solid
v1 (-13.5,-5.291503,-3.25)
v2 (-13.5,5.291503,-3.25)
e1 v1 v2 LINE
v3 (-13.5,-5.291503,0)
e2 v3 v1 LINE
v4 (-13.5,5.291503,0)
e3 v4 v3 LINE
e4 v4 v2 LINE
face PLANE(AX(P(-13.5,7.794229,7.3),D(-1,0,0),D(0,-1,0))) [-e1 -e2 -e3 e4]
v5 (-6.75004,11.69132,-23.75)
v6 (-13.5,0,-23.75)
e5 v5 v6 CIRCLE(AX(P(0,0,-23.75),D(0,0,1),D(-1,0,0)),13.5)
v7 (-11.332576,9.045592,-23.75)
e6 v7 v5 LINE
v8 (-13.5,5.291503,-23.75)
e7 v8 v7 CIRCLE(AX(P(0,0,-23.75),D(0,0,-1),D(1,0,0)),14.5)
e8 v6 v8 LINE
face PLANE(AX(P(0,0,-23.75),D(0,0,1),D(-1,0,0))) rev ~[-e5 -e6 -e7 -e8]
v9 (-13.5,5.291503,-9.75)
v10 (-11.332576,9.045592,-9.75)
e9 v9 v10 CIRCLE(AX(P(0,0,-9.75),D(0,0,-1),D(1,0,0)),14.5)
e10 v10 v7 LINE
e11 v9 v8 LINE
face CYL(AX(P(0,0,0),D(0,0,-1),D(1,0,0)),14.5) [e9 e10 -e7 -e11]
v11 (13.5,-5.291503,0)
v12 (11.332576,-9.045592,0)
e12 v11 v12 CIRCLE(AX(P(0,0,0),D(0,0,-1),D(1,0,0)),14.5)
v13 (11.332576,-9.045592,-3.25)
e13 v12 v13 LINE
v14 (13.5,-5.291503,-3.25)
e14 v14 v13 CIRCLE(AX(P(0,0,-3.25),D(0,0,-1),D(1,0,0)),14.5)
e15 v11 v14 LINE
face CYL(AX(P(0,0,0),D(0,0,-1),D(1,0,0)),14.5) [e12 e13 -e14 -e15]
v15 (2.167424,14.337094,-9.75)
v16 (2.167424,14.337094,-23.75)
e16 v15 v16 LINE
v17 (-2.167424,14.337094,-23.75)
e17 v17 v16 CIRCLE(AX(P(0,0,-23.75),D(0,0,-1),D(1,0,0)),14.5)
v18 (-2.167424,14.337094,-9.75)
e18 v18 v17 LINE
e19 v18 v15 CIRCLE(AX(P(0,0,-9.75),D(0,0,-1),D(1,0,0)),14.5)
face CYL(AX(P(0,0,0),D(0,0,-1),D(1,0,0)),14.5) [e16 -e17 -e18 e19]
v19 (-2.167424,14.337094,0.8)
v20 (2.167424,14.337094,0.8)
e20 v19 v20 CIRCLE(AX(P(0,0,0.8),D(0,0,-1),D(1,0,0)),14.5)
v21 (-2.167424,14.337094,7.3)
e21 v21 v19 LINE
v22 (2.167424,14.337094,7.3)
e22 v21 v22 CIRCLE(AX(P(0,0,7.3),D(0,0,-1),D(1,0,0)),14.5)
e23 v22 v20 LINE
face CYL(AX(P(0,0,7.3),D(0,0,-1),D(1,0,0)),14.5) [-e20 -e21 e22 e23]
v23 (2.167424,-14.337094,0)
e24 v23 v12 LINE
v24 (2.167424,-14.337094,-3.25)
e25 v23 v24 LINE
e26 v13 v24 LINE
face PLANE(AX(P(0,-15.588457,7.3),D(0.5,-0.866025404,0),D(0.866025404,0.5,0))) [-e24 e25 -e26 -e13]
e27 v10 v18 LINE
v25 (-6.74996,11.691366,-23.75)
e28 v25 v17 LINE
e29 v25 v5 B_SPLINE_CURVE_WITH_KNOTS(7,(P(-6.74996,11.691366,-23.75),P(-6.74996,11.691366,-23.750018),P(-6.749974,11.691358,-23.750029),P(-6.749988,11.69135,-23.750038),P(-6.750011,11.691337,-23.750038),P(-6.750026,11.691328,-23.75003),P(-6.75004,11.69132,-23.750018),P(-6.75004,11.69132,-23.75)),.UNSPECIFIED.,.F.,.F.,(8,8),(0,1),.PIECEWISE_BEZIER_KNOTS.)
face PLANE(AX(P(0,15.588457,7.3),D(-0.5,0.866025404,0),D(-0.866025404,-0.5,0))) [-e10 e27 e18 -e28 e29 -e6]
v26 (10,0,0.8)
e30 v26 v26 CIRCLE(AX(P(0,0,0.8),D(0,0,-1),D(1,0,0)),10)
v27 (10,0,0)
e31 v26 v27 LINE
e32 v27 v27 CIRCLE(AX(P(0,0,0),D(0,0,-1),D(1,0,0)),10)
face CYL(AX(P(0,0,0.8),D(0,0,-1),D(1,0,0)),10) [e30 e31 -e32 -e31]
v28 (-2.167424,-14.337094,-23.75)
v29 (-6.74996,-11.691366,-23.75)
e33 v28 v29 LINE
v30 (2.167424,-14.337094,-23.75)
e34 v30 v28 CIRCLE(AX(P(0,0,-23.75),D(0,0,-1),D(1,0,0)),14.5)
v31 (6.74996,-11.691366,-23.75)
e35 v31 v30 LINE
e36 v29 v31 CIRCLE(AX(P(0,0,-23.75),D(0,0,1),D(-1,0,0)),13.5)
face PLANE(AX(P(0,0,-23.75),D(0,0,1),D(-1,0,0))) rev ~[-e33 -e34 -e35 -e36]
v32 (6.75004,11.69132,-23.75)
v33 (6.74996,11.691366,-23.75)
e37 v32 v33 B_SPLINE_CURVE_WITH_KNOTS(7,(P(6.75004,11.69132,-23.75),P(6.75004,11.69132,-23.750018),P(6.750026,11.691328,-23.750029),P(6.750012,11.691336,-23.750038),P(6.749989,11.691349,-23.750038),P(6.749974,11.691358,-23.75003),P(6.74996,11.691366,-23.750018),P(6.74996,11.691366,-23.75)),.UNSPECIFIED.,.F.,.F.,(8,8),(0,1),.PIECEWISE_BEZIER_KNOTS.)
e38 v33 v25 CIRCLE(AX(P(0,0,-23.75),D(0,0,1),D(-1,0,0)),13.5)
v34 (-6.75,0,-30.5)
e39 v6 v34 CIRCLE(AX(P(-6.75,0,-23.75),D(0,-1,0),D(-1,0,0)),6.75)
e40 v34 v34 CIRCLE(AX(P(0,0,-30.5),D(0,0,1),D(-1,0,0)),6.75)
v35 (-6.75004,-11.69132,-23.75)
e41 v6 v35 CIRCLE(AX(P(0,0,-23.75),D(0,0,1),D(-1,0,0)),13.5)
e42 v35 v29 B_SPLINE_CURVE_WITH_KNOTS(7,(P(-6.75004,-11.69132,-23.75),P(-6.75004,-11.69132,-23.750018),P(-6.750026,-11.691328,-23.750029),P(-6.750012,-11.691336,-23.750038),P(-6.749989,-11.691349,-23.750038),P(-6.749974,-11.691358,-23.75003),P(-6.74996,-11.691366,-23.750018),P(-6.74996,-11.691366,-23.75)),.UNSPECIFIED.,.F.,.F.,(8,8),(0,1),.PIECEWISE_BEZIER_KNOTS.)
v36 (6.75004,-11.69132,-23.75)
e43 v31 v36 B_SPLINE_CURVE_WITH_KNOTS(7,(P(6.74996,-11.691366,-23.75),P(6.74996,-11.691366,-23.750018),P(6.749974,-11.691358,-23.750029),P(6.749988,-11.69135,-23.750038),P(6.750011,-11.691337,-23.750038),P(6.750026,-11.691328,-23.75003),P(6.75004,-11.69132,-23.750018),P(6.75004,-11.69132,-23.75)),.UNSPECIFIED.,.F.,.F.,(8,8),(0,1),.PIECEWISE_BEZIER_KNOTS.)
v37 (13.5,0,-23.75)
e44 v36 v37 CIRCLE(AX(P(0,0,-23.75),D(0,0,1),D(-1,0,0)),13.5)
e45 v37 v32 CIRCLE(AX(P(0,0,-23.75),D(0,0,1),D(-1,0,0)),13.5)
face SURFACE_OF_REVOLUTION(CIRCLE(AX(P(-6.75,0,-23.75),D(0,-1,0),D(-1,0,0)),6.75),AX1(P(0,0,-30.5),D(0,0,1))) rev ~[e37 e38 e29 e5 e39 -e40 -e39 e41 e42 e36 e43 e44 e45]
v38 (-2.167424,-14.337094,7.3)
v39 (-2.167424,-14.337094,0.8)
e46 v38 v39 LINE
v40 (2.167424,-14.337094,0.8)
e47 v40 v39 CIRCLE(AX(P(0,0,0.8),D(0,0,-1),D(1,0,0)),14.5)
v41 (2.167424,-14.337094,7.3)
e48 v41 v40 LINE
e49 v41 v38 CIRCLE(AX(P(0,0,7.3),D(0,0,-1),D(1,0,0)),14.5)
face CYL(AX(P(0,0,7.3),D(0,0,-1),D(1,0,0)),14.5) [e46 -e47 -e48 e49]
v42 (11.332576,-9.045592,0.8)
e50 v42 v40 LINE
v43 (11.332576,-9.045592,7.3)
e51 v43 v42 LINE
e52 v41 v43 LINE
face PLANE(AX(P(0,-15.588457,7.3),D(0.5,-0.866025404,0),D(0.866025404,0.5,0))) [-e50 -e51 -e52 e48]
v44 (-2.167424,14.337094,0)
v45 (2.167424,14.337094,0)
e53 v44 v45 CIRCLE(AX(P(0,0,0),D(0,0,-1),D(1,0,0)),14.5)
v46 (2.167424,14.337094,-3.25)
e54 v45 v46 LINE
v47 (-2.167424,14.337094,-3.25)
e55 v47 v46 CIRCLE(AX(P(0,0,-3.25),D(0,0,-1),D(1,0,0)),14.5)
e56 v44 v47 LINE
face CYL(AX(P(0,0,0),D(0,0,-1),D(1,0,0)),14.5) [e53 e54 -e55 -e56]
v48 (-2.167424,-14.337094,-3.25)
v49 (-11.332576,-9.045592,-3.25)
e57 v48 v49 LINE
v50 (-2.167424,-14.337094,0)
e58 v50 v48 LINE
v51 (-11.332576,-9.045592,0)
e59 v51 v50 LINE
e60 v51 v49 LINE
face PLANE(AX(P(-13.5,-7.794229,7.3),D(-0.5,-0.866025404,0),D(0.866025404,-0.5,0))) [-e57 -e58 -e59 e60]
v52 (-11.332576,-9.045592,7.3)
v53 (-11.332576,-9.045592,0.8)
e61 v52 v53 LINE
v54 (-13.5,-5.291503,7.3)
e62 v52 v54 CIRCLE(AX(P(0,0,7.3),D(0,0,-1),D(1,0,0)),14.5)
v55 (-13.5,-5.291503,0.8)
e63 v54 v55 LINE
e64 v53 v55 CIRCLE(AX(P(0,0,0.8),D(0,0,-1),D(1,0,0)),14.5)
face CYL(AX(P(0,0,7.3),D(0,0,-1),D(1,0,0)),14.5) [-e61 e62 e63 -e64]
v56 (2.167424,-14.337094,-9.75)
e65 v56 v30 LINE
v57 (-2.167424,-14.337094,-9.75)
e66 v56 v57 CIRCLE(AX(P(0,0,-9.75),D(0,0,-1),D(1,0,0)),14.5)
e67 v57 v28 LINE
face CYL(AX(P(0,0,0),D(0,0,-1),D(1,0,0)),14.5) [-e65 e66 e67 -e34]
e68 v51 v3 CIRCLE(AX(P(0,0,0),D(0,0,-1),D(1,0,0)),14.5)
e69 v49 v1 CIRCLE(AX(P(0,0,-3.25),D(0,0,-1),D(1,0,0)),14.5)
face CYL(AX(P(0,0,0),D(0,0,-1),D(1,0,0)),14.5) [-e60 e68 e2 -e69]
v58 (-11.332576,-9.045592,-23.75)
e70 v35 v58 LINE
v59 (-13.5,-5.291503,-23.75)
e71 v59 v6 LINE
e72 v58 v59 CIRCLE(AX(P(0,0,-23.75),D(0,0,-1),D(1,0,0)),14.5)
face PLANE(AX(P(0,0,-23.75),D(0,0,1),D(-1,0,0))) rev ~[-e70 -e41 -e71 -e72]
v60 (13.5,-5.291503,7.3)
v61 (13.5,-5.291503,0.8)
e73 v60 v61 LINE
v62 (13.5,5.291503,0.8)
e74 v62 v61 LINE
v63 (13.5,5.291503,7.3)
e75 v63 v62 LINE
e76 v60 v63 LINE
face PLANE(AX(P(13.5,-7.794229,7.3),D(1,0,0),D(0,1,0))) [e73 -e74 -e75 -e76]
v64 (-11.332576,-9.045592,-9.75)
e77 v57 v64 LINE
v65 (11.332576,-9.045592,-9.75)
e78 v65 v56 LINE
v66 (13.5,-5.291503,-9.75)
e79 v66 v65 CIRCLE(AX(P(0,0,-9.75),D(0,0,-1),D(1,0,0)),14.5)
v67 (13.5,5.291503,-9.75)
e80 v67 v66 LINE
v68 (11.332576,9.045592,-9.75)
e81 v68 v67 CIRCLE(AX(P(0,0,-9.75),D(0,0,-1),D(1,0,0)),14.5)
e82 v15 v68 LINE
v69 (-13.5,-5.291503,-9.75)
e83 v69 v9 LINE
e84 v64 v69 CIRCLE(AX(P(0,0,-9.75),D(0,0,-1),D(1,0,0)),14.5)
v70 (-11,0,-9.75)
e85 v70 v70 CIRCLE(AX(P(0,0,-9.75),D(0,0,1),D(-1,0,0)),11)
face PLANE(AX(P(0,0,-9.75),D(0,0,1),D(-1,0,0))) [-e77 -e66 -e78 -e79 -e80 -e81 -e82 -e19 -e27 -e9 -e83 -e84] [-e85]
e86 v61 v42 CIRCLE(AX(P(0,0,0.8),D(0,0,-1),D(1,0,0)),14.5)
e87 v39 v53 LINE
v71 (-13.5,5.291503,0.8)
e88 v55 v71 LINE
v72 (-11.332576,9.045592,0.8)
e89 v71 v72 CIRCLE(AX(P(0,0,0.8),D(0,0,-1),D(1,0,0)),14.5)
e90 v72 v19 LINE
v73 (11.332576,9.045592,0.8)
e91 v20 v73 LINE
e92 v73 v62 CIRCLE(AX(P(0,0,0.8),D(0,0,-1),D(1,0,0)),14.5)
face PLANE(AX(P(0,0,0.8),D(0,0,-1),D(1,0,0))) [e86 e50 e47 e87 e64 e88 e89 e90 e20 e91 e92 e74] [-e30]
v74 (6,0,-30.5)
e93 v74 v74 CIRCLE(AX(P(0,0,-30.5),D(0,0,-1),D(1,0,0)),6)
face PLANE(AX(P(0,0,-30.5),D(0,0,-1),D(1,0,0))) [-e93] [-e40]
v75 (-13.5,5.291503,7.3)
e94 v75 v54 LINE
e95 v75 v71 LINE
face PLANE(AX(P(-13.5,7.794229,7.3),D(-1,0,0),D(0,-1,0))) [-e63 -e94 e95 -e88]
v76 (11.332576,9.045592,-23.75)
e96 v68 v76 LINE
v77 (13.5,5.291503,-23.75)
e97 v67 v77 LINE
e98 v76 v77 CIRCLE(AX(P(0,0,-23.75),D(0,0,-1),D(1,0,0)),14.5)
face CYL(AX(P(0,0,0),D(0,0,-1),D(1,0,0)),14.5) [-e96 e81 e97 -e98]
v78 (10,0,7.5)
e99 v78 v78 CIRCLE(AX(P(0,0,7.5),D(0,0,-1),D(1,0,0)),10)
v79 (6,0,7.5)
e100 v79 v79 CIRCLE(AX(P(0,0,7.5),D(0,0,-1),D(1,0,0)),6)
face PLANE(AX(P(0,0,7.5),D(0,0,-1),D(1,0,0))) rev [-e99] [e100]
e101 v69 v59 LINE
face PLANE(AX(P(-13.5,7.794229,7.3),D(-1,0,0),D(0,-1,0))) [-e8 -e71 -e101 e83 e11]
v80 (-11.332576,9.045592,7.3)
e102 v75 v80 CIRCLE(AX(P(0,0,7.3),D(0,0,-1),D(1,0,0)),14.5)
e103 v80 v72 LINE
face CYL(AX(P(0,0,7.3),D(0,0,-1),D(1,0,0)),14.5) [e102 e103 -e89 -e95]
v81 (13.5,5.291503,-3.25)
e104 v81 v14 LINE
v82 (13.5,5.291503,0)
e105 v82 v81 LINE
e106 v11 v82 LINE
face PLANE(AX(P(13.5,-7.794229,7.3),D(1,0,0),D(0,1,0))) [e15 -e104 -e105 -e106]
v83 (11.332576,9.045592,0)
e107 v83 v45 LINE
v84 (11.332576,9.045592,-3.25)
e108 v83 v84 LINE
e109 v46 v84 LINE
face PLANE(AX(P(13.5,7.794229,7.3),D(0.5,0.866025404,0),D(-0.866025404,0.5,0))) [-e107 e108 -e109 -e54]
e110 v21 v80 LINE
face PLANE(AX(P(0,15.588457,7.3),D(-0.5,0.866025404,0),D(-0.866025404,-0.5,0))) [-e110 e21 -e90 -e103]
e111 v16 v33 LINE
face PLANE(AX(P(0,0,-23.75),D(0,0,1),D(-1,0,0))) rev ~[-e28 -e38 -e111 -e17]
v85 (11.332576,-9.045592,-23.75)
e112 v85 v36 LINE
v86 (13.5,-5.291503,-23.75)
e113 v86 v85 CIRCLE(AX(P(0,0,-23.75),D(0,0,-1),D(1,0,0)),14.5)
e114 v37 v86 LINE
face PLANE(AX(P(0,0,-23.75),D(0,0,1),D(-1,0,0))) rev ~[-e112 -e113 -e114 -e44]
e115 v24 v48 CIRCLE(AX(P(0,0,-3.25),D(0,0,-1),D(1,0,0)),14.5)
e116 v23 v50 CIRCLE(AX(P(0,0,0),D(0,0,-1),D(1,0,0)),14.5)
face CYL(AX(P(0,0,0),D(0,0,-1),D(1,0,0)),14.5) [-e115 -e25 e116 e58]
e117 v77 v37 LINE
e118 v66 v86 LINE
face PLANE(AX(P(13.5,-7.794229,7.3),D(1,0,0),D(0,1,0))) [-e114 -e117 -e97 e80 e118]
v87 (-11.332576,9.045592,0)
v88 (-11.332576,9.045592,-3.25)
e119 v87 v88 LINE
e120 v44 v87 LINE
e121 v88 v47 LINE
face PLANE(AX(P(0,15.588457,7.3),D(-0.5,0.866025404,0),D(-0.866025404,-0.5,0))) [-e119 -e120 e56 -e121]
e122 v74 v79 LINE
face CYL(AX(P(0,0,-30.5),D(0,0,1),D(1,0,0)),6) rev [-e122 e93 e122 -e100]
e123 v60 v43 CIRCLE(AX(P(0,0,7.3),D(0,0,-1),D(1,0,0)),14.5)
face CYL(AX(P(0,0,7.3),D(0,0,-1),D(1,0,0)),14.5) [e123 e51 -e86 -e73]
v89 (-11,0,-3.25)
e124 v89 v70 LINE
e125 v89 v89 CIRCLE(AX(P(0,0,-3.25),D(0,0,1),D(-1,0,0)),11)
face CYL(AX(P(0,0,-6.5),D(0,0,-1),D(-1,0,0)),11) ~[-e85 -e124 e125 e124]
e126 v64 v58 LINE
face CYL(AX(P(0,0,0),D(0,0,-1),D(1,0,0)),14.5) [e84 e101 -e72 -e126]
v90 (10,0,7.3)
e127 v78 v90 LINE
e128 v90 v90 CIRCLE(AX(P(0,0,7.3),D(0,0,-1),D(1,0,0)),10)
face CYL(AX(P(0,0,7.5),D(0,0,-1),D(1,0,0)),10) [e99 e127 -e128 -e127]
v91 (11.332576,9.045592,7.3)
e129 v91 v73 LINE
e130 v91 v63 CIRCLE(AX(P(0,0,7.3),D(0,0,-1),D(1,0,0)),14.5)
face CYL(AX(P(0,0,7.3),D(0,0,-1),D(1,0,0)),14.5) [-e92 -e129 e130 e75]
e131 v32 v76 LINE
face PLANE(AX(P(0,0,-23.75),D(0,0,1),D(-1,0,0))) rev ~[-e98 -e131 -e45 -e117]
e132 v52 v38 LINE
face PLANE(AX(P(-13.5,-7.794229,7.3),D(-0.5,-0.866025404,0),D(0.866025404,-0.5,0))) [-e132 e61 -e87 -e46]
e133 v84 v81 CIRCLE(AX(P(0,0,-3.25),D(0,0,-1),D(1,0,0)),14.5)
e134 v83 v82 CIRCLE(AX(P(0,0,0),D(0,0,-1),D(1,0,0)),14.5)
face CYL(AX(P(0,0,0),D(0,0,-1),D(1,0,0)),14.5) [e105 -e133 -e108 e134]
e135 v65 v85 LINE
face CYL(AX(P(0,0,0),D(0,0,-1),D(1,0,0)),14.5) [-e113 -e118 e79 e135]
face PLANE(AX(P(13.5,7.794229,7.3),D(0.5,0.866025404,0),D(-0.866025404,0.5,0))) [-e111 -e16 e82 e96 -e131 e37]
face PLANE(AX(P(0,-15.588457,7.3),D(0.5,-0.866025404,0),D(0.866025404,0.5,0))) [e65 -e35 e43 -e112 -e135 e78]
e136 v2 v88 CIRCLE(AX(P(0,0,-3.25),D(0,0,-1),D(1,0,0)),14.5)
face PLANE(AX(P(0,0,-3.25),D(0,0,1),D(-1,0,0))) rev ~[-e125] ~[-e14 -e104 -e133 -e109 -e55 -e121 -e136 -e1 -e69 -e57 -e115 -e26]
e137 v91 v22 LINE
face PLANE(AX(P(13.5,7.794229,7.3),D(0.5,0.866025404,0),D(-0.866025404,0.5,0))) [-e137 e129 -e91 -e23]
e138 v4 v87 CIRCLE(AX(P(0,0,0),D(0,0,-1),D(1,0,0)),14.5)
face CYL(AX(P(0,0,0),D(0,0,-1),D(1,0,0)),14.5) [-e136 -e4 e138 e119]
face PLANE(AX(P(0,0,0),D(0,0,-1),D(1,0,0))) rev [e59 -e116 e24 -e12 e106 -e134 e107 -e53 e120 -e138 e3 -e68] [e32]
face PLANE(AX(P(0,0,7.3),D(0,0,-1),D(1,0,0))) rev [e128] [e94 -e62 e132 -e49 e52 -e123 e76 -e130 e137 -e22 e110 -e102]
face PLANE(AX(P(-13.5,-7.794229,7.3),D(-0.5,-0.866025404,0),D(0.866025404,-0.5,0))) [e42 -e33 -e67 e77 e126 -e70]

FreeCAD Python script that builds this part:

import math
import FreeCAD as App
import Part
import Sketcher
Q = App.Units.Quantity


def add_polygon(sketch, points):
    """Adds a closed chain of lines whose ends are joined by coincident constraints."""
    first, n = sketch.GeometryCount, len(points)
    for a, b in zip(points, points[1:] + points[:1]):
        sketch.addGeometry(Part.LineSegment(App.Vector(*a, 0), App.Vector(*b, 0)), False)
    for i in range(n):
        sketch.addConstraint(Sketcher.Constraint("Coincident", first + i, 2, first + (i + 1) % n, 1))

doc = App.newDocument("Part")
params = doc.addObject("Spreadsheet::Sheet", "Params")
for row, (alias, value) in enumerate([
    ("sketch1_width", "4 mm"),
    ("sketch1_height", "38 mm"),
    ("sketch1_width2", "8.5 mm"),
    ("sketch1_height2", "0.2 mm"),
    ("sketch1_height3", "30.5 mm"),
    ("revolution_angle", "360 deg"),
    ("sketch3_width", "5 mm"),
    ("sketch3_radius", "6.75 mm"),
    ("sketch3_height", "6.5 mm"),
    ("groove_angle", "360 deg"),
], start=1):
    params.set(f"A{row}", alias)
    params.set(f"B{row}", "=" + value)
    params.setAlias(f"B{row}", alias)

body = doc.addObject("PartDesign::Body", "Body")

# Sketch on YZ plane
sketch1 = doc.addObject("Sketcher::SketchObject", "Sketch")
body.addObject(sketch1)
sketch1.AttachmentSupport = (doc.YZ_Plane, [""])
sketch1.MapMode = "FlatFace"
add_polygon(sketch1, [(10, 7.3), (10, 7.5), (6, 7.5), (6, -30.5), (14.5, -30.5), (14.5, 0), (10, 0), (10, 0.8), (14.5, 0.8), (14.5, 7.3)])  # lines 0-9
sketch1.addConstraint([
    Sketcher.Constraint("Vertical", 0),
    Sketcher.Constraint("Horizontal", 1),
    Sketcher.Constraint("Vertical", 2),
    Sketcher.Constraint("Horizontal", 3),
    Sketcher.Constraint("Vertical", 4),
    Sketcher.Constraint("Horizontal", 5),
    Sketcher.Constraint("Vertical", 6),
    Sketcher.Constraint("Horizontal", 7),
    Sketcher.Constraint("Vertical", 8),
    Sketcher.Constraint("Horizontal", 9),
    Sketcher.Constraint("PointOnObject", 4, 2, -1),
    Sketcher.Constraint("Vertical", 0, 2, 5, 2),
    Sketcher.Constraint("Vertical", 4, 2, 7, 2),
    Sketcher.Constraint("DistanceX", 1, 2, 1, 1, 4.0),
    Sketcher.Constraint("DistanceY", 2, 2, 2, 1, 38.0),
    Sketcher.Constraint("DistanceX", 3, 1, 3, 2, 8.5),
    Sketcher.Constraint("DistanceY", 0, 1, 0, 2, 0.2),
    Sketcher.Constraint("DistanceY", 4, 1, 4, 2, 30.5),
    Sketcher.Constraint("DistanceY", 6, 1, 6, 2, 0.8),
    Sketcher.Constraint("DistanceX", -1, 1, 0, 2, 10.0),
])
sketch1.setExpression("Constraints[23]", "Params.sketch1_width")
sketch1.setExpression("Constraints[24]", "Params.sketch1_height")
sketch1.setExpression("Constraints[25]", "Params.sketch1_width2")
sketch1.setExpression("Constraints[26]", "Params.sketch1_height2")
sketch1.setExpression("Constraints[27]", "Params.sketch1_height3")
revolution = doc.addObject("PartDesign::Revolution", "Revolution")
body.addObject(revolution)
revolution.Profile = sketch1
revolution.ReferenceAxis = (sketch1, ["V_Axis"])
revolution.setExpression("Angle", "Params.revolution_angle")

# Sketch on XY plane
sketch2 = doc.addObject("Sketcher::SketchObject", "Sketch001")
body.addObject(sketch2)
sketch2.AttachmentSupport = (doc.XY_Plane, [""])
sketch2.MapMode = "FlatFace"
sketch2.AttachmentOffset = App.Placement(App.Vector(0, 0, 7.3), App.Rotation())
add_polygon(sketch2, [(-21, 21), (-21, -21), (21, -21), (21, 21)])  # lines 0-3
add_polygon(sketch2, [(-14, 8), (0, 16), (14, 8), (14, -8), (0, -16), (-14, -8)])  # lines 4-9
sketch2.addConstraint([
    Sketcher.Constraint("Vertical", 0),
    Sketcher.Constraint("Horizontal", 1),
    Sketcher.Constraint("Vertical", 2),
    Sketcher.Constraint("Horizontal", 3),
    Sketcher.Constraint("Vertical", 6),
    Sketcher.Constraint("Vertical", 9),
    Sketcher.Constraint("Symmetric", 0, 2, 2, 2, -1, 1),
    Sketcher.Constraint("Symmetric", 4, 2, 7, 2, -1, 1),
    Sketcher.Constraint("Symmetric", 5, 2, 8, 2, -1, 1),
    Sketcher.Constraint("PointOnObject", 4, 2, -2),
    Sketcher.Constraint("Parallel", 4, 7),
    Sketcher.Constraint("Horizontal", 6, 2, 8, 2),
    Sketcher.Constraint("Equal", 3, 0),
    Sketcher.Constraint("Angle", 4, Q("30 deg")),
    Sketcher.Constraint("DistanceX", 8, 2, 6, 2, 27.0),
    Sketcher.Constraint("DistanceX", 1, 1, 1, 2, 42.182),
    Sketcher.Constraint("DistanceY", 6, 2, 6, 1, 15.588457),
])
pocket1 = doc.addObject("PartDesign::Pocket", "Pocket")
body.addObject(pocket1)
pocket1.Profile = sketch2
pocket1.Type = "ThroughAll"

# Sketch on XZ plane
sketch3 = doc.addObject("Sketcher::SketchObject", "Sketch002")
body.addObject(sketch3)
sketch3.AttachmentSupport = (doc.XZ_Plane, [""])
sketch3.MapMode = "FlatFace"
sketch3.addGeometry(Part.LineSegment(App.Vector(-7, -30, 0), App.Vector(-7, -36, 0)), False)  # 0
sketch3.addGeometry(Part.LineSegment(App.Vector(-7, -36, 0), App.Vector(-61, -36, 0)), False)  # 1
sketch3.addGeometry(Part.LineSegment(App.Vector(-61, -36, 0), App.Vector(-61, -24, 0)), False)  # 2
sketch3.addGeometry(Part.LineSegment(App.Vector(-61, -24, 0), App.Vector(-14, -24, 0)), False)  # 3
sketch3.addGeometry(Part.ArcOfCircle(Part.Circle(App.Vector(-7, -24, 0), App.Vector(0, 0, 1), 7), math.radians(180), math.radians(270)), False)  # 4
add_polygon(sketch3, [(-16, -10), (-16, -3), (-11, -3), (-11, -10)])  # lines 5-8
sketch3.addConstraint([
    Sketcher.Constraint("Coincident", 0, 2, 1, 1),
    Sketcher.Constraint("Coincident", 1, 2, 2, 1),
    Sketcher.Constraint("Coincident", 2, 2, 3, 1),
    Sketcher.Constraint("Coincident", 3, 2, 4, 1),
    Sketcher.Constraint("Coincident", 4, 2, 0, 1),
    Sketcher.Constraint("Vertical", 0),
    Sketcher.Constraint("Horizontal", 1),
    Sketcher.Constraint("Vertical", 2),
    Sketcher.Constraint("Horizontal", 3),
    Sketcher.Constraint("Vertical", 5),
    Sketcher.Constraint("Horizontal", 6),
    Sketcher.Constraint("Vertical", 7),
    Sketcher.Constraint("Horizontal", 8),
    Sketcher.Constraint("Horizontal", 4, 3, 2, 2),
    Sketcher.Constraint("Vertical", 4, 3, 0, 2),
    Sketcher.Constraint("Equal", 8, 0),
    Sketcher.Constraint("DistanceX", 6, 1, 6, 2, 5.0),
    Sketcher.Constraint("Radius", 4, 6.75),
    Sketcher.Constraint("DistanceY", 5, 1, 5, 2, 6.5),
    Sketcher.Constraint("DistanceX", 5, 2, -1, 1, 16.0),
    Sketcher.Constraint("DistanceY", 3, 2, 7, 2, 14.0),
    Sketcher.Constraint("DistanceY", 0, 2, -1, 1, 35.5),
    Sketcher.Constraint("DistanceX", 3, 2, -1, 1, 13.5),
    Sketcher.Constraint("DistanceX", 1, 2, 1, 1, 54.696878),
])
sketch3.setExpression("Constraints[20]", "Params.sketch3_width")
sketch3.setExpression("Constraints[21]", "Params.sketch3_radius")
sketch3.setExpression("Constraints[22]", "Params.sketch3_height")
groove = doc.addObject("PartDesign::Groove", "Groove")
body.addObject(groove)
groove.Profile = sketch3
groove.ReferenceAxis = (sketch3, ["V_Axis"])
groove.setExpression("Angle", "Params.groove_angle")

doc.recompute()
